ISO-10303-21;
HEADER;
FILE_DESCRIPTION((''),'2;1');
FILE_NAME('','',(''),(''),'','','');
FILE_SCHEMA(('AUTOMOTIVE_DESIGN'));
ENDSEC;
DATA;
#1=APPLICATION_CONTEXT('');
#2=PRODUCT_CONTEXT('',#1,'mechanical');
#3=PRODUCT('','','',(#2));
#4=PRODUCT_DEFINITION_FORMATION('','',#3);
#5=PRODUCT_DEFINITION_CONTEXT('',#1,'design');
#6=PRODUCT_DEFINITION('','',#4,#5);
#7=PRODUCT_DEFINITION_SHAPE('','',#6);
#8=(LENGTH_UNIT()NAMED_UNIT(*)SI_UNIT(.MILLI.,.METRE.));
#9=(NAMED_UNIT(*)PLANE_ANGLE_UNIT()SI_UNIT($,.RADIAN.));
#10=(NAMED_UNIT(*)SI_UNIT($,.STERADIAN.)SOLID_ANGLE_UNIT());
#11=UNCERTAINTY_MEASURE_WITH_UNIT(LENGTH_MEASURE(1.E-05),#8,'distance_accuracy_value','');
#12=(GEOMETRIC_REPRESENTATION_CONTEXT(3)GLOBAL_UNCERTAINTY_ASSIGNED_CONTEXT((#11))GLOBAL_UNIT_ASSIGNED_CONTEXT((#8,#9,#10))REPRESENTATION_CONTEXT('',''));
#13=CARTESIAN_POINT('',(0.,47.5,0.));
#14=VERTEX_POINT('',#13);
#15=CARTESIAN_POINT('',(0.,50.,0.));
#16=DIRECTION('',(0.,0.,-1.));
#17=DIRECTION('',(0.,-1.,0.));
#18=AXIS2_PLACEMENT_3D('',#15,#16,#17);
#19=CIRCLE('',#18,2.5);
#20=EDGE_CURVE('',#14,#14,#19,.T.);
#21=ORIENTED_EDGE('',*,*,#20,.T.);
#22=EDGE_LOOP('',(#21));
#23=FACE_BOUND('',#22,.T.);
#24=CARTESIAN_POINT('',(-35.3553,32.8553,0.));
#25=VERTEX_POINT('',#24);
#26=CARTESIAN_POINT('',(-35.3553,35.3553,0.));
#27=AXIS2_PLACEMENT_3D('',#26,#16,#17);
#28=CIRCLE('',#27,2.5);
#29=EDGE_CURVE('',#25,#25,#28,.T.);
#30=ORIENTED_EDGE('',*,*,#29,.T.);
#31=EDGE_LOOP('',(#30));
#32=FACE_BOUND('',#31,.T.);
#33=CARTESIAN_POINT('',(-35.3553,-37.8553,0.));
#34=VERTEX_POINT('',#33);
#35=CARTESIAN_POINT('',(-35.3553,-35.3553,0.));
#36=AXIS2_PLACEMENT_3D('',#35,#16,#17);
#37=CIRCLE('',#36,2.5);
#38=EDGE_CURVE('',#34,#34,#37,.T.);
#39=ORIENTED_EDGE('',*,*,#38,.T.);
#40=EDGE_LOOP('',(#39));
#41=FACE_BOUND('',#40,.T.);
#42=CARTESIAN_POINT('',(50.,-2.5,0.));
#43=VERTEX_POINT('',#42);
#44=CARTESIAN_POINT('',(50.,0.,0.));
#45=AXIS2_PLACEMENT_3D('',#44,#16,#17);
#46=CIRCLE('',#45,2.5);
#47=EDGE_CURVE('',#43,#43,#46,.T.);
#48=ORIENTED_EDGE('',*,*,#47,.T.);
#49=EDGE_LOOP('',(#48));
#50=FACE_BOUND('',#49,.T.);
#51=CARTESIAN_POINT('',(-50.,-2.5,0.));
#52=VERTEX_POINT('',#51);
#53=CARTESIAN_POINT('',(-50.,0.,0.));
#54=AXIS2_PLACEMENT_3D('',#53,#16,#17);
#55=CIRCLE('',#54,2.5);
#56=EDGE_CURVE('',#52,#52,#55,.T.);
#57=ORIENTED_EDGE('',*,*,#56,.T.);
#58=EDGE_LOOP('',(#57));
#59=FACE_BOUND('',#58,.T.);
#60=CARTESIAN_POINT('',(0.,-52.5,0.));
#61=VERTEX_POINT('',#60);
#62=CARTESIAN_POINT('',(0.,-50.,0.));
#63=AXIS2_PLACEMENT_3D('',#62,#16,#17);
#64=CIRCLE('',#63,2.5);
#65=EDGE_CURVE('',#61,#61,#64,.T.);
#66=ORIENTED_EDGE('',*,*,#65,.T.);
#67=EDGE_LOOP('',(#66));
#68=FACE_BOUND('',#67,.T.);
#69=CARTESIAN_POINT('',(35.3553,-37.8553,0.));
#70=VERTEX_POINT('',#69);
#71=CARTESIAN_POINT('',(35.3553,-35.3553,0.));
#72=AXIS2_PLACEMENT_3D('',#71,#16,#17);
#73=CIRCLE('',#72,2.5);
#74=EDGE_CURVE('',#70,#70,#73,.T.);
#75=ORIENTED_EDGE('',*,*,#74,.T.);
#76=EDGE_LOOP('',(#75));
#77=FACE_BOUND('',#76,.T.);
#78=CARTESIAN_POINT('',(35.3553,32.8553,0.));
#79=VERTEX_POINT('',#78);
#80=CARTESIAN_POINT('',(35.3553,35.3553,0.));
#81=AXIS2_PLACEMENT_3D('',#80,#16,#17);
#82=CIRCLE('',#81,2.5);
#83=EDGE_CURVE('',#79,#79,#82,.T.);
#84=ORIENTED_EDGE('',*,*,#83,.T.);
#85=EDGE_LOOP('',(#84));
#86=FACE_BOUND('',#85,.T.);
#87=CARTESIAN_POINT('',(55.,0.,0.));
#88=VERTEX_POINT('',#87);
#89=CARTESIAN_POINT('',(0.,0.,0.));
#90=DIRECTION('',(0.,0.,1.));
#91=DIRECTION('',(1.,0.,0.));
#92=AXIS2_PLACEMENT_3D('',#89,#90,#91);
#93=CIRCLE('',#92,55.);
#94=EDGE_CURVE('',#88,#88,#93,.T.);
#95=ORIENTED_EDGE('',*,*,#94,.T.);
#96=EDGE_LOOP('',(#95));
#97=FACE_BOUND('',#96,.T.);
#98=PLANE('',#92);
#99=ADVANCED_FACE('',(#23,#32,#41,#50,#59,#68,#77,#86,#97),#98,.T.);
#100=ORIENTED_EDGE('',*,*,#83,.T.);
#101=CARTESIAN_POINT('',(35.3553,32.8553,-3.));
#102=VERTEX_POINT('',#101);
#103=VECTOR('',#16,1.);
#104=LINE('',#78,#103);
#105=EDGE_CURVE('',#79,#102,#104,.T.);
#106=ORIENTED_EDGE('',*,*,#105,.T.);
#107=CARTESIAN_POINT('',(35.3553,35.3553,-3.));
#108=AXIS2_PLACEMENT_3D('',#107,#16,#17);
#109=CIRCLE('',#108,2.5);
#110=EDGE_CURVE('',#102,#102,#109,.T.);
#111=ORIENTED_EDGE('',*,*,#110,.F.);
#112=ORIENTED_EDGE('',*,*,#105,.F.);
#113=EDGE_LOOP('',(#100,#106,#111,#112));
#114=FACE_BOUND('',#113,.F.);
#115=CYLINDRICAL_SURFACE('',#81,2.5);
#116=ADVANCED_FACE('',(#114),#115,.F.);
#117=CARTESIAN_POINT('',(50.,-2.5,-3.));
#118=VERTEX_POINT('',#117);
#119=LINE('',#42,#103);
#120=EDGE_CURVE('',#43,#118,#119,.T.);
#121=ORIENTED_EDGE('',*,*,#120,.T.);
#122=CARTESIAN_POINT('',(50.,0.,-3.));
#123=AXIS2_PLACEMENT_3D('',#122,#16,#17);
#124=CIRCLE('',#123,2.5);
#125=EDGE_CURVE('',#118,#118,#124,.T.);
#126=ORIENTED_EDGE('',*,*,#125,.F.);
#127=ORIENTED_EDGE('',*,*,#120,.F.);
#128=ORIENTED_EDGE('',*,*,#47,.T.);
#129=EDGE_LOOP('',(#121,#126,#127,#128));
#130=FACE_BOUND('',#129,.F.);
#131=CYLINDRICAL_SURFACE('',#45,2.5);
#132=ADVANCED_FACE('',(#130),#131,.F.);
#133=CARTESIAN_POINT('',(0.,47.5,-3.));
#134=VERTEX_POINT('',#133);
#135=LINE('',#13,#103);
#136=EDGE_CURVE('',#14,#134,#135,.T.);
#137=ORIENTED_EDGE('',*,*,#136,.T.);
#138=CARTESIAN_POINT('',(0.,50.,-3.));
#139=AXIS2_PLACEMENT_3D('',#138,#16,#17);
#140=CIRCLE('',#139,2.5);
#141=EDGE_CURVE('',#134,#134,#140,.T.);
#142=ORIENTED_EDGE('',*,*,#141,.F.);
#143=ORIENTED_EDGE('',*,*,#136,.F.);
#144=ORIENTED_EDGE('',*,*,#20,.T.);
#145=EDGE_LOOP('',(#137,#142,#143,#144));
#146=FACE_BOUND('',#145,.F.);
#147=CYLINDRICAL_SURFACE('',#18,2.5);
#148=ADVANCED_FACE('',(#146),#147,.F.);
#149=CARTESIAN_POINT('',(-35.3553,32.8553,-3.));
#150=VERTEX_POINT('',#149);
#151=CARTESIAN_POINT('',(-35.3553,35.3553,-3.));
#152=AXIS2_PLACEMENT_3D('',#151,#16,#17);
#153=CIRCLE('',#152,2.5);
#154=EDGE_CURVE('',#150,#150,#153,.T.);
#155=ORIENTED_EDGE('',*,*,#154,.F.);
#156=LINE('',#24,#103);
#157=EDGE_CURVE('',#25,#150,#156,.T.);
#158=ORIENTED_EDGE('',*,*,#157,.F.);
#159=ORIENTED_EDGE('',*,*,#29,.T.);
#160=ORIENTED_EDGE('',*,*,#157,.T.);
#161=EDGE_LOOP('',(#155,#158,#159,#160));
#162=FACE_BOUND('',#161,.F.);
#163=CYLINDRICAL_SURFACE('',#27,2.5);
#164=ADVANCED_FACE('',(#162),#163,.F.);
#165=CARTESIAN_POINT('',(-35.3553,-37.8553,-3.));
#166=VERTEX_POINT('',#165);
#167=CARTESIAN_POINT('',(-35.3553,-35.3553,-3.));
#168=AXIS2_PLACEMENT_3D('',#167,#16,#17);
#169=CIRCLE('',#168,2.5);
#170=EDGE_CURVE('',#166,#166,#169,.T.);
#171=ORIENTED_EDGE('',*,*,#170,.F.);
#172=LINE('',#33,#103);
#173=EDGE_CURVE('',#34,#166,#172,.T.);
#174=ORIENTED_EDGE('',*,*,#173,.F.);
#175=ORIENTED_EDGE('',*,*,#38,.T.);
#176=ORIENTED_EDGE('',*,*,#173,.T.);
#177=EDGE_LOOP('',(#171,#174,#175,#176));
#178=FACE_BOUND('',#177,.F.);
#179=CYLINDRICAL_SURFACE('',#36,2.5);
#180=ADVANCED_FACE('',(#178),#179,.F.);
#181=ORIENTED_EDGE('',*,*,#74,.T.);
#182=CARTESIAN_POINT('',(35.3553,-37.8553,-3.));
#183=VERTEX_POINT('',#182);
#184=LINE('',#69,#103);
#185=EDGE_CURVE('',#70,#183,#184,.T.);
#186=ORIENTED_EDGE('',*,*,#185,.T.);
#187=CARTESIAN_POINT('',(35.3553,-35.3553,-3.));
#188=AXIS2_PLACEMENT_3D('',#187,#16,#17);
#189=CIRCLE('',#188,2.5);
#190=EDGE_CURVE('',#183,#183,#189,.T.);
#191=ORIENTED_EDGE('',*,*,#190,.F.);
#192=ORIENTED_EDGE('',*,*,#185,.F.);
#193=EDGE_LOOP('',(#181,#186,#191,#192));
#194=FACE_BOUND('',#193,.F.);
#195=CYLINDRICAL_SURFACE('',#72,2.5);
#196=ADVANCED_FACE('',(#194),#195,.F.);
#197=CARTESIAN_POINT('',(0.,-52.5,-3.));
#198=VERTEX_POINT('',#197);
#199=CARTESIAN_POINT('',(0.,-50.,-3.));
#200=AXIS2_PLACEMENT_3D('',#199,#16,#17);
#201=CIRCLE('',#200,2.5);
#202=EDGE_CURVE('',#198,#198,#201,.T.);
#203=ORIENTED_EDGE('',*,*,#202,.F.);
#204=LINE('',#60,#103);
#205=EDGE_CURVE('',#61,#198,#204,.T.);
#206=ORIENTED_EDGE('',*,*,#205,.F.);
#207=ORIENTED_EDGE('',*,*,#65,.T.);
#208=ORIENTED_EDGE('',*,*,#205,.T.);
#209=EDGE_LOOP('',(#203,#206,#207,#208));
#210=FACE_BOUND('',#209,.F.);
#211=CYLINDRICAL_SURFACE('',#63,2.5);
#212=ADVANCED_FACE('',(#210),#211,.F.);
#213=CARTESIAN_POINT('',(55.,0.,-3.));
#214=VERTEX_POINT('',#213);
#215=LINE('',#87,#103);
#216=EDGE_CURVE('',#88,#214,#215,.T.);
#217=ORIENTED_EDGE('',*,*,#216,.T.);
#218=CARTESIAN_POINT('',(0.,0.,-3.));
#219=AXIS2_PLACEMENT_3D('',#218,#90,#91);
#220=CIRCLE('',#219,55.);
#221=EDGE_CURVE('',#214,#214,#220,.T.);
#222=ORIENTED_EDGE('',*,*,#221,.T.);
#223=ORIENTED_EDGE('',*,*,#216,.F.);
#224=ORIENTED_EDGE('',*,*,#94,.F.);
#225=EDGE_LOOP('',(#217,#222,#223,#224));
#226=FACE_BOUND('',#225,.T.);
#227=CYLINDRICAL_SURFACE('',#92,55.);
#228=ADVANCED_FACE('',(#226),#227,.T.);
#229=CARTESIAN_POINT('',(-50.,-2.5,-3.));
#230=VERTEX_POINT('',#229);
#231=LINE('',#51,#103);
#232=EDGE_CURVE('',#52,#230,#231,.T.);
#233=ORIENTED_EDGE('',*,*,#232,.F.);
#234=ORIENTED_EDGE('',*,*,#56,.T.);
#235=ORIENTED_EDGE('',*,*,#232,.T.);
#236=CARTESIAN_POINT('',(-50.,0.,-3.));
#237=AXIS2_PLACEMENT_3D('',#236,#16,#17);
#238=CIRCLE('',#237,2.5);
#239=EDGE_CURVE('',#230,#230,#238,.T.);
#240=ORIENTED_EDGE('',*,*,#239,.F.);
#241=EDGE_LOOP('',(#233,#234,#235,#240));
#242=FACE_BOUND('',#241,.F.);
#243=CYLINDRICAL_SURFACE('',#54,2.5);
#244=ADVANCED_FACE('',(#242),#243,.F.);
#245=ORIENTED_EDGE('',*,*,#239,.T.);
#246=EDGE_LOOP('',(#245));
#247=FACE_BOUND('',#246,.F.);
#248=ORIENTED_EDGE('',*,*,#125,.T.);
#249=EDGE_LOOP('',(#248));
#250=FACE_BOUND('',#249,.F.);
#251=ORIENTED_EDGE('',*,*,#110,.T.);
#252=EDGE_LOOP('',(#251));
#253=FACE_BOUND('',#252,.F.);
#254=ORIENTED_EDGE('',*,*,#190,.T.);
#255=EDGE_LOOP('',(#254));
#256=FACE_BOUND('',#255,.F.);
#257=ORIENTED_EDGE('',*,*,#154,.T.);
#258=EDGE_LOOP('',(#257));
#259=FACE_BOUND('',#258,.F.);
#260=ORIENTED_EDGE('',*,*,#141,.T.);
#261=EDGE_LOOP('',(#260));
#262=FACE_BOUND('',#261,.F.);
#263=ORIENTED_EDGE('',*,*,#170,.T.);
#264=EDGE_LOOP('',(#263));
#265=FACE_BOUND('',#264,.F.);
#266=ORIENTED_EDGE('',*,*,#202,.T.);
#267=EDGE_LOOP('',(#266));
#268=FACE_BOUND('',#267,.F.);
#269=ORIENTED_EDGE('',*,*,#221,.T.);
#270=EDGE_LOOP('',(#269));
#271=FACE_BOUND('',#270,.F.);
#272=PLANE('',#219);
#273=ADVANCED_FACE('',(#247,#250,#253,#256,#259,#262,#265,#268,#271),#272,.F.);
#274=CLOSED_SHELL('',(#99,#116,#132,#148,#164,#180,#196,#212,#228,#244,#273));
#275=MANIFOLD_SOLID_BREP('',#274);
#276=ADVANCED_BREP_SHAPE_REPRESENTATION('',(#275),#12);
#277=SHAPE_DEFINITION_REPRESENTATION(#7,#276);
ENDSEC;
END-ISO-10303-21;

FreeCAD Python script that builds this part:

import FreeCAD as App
import Part
import Sketcher

doc = App.newDocument("Part")
body = doc.addObject("PartDesign::Body", "Body")

sketch1 = body.newObject("Sketcher::SketchObject", "Sketch")
sketch1.AttachmentSupport = (doc.getObject("XY_Plane"), [""])
sketch1.MapMode = "FlatFace"
sketch1.addGeometry(Part.Circle(App.Vector(0, 0, 0), App.Vector(0, 0, 1), 55), False)
sketch1.addConstraint([
    Sketcher.Constraint("Coincident", 0, 3, -1, 1),
    Sketcher.Constraint("Diameter", 0, 110.0),
])
pad1 = body.newObject("PartDesign::Pad", "Pad")
pad1.Profile = sketch1
pad1.Length = 3
pad1.Reversed = True

sketch2 = body.newObject("Sketcher::SketchObject", "Sketch001")
sketch2.AttachmentSupport = (doc.getObject("XY_Plane"), [""])
sketch2.MapMode = "FlatFace"
sketch2.addGeometry([
    Part.Circle(App.Vector(0, 50, 0), App.Vector(0, 0, 1), 2.5),
    Part.Circle(App.Vector(-35.4, 35.4, 0), App.Vector(0, 0, 1), 2.5),
    Part.Circle(App.Vector(-50, 0, 0), App.Vector(0, 0, 1), 2.5),
    Part.Circle(App.Vector(-35.4, -35.4, 0), App.Vector(0, 0, 1), 2.5),
    Part.Circle(App.Vector(0, -50, 0), App.Vector(0, 0, 1), 2.5),
    Part.Circle(App.Vector(35.4, -35.4, 0), App.Vector(0, 0, 1), 2.5),
    Part.Circle(App.Vector(50, 0, 0), App.Vector(0, 0, 1), 2.5),
    Part.Circle(App.Vector(35.4, 35.4, 0), App.Vector(0, 0, 1), 2.5),
], False)
sketch2.addConstraint([
    Sketcher.Constraint("Equal", 0, 1),
    Sketcher.Constraint("Equal", 1, 2),
    Sketcher.Constraint("Equal", 2, 3),
    Sketcher.Constraint("Equal", 3, 4),
    Sketcher.Constraint("Equal", 4, 5),
    Sketcher.Constraint("Equal", 5, 6),
    Sketcher.Constraint("Equal", 6, 7),
    Sketcher.Constraint("Symmetric", 0, 3, 4, 3, -1, 1),
    Sketcher.Constraint("Symmetric", 1, 3, 5, 3, -1, 1),
    Sketcher.Constraint("Symmetric", 2, 3, 6, 3, -1, 1),
    Sketcher.Constraint("Symmetric", 3, 3, 7, 3, -1, 1),
    Sketcher.Constraint("Symmetric", 3, 3, 5, 3, -2),
    Sketcher.Constraint("PointOnObject", 0, 3, -2),
    Sketcher.Constraint("PointOnObject", 2, 3, -1),
    Sketcher.Constraint("Diameter", 0, 5.0),
    Sketcher.Constraint("DistanceY", -1, 1, 0, 3, 50.0),
    Sketcher.Constraint("DistanceX", 2, 3, -1, 1, 50.0),
    Sketcher.Constraint("DistanceX", 1, 3, -1, 1, 35.3553),
    Sketcher.Constraint("DistanceY", -1, 1, 1, 3, 35.3553),
])
doc.recompute()
hole = body.newObject("PartDesign::Hole", "Hole")
hole.Profile = sketch2
hole.ThreadType = "None"
hole.Diameter = 5
hole.DepthType = "ThroughAll"

doc.recompute()
